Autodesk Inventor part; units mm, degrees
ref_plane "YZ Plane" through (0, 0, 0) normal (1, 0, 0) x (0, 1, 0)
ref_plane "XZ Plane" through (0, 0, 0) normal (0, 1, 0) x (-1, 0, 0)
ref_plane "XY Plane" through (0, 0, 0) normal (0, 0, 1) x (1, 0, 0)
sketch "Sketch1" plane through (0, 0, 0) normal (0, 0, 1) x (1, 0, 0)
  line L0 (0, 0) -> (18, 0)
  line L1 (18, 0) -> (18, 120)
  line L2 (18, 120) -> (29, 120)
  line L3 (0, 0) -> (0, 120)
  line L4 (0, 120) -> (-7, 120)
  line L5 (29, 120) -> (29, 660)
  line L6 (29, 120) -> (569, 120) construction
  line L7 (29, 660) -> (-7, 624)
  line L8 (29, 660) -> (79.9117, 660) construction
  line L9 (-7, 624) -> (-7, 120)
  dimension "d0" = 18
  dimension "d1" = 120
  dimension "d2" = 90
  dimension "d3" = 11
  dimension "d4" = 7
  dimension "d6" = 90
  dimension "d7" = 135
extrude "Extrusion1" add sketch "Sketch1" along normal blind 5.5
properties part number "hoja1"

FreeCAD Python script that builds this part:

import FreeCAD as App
import Part
import Sketcher
Q = App.Units.Quantity


def add_polygon(sketch, points):
    """Adds a closed chain of lines whose ends are joined by coincident constraints."""
    first, n = sketch.GeometryCount, len(points)
    for a, b in zip(points, points[1:] + points[:1]):
        sketch.addGeometry(Part.LineSegment(App.Vector(*a, 0), App.Vector(*b, 0)), False)
    for i in range(n):
        sketch.addConstraint(Sketcher.Constraint("Coincident", first + i, 2, first + (i + 1) % n, 1))

doc = App.newDocument("Part")
params = doc.addObject("Spreadsheet::Sheet", "Params")
for row, (alias, value) in enumerate([
    ("sketch1_width", "18 mm"),
    ("sketch1_width2", "11 mm"),
    ("sketch1_width3", "7 mm"),
    ("sketch1_height", "120 mm"),
    ("sketch1_height2", "540 mm"),
    ("pad1_length", "5.5 mm"),
], start=1):
    params.set(f"A{row}", alias)
    params.set(f"B{row}", "=" + value)
    params.setAlias(f"B{row}", alias)

body = doc.addObject("PartDesign::Body", "Body")

# Sketch on XY plane
sketch1 = body.newObject("Sketcher::SketchObject", "Sketch")
sketch1.AttachmentSupport = (doc.getObject("XY_Plane"), [""])
sketch1.MapMode = "FlatFace"
add_polygon(sketch1, [(0, 120), (0, 0), (18, 0), (18, 120), (29, 120), (29, 660), (-7, 624), (-7, 120)])  # lines 0-7
sketch1.addConstraint(Sketcher.Constraint("Vertical", 0))
sketch1.addConstraint(Sketcher.Constraint("Horizontal", 1))
sketch1.addConstraint(Sketcher.Constraint("Vertical", 2))
sketch1.addConstraint(Sketcher.Constraint("Horizontal", 3))
sketch1.addConstraint(Sketcher.Constraint("Vertical", 4))
sketch1.addConstraint(Sketcher.Constraint("Vertical", 6))
sketch1.addConstraint(Sketcher.Constraint("Horizontal", 7))
sketch1.addConstraint(Sketcher.Constraint("Coincident", 0, 2, -1, 1))
sketch1.addConstraint(Sketcher.Constraint("Horizontal", 3, 2, 6, 2))
sketch1.addConstraint(Sketcher.Constraint("DistanceX", 1, 1, 1, 2, Q("18 mm")))
sketch1.addConstraint(Sketcher.Constraint("DistanceX", 3, 1, 3, 2, Q("11 mm")))
sketch1.addConstraint(Sketcher.Constraint("DistanceX", 7, 1, 7, 2, Q("7 mm")))
sketch1.addConstraint(Sketcher.Constraint("DistanceY", 0, 2, 0, 1, Q("120 mm")))
sketch1.addConstraint(Sketcher.Constraint("Angle", 5, Q("-135 deg")))
sketch1.addConstraint(Sketcher.Constraint("DistanceY", 4, 1, 4, 2, Q("540 mm")))
sketch1.setExpression("Constraints[17]", "Params.sketch1_width")
sketch1.setExpression("Constraints[18]", "Params.sketch1_width2")
sketch1.setExpression("Constraints[19]", "Params.sketch1_width3")
sketch1.setExpression("Constraints[20]", "Params.sketch1_height")
sketch1.setExpression("Constraints[22]", "Params.sketch1_height2")
pad1 = body.newObject("PartDesign::Pad", "Pad")
pad1.Profile = sketch1
pad1.setExpression("Length", "Params.pad1_length")

doc.recompute()
